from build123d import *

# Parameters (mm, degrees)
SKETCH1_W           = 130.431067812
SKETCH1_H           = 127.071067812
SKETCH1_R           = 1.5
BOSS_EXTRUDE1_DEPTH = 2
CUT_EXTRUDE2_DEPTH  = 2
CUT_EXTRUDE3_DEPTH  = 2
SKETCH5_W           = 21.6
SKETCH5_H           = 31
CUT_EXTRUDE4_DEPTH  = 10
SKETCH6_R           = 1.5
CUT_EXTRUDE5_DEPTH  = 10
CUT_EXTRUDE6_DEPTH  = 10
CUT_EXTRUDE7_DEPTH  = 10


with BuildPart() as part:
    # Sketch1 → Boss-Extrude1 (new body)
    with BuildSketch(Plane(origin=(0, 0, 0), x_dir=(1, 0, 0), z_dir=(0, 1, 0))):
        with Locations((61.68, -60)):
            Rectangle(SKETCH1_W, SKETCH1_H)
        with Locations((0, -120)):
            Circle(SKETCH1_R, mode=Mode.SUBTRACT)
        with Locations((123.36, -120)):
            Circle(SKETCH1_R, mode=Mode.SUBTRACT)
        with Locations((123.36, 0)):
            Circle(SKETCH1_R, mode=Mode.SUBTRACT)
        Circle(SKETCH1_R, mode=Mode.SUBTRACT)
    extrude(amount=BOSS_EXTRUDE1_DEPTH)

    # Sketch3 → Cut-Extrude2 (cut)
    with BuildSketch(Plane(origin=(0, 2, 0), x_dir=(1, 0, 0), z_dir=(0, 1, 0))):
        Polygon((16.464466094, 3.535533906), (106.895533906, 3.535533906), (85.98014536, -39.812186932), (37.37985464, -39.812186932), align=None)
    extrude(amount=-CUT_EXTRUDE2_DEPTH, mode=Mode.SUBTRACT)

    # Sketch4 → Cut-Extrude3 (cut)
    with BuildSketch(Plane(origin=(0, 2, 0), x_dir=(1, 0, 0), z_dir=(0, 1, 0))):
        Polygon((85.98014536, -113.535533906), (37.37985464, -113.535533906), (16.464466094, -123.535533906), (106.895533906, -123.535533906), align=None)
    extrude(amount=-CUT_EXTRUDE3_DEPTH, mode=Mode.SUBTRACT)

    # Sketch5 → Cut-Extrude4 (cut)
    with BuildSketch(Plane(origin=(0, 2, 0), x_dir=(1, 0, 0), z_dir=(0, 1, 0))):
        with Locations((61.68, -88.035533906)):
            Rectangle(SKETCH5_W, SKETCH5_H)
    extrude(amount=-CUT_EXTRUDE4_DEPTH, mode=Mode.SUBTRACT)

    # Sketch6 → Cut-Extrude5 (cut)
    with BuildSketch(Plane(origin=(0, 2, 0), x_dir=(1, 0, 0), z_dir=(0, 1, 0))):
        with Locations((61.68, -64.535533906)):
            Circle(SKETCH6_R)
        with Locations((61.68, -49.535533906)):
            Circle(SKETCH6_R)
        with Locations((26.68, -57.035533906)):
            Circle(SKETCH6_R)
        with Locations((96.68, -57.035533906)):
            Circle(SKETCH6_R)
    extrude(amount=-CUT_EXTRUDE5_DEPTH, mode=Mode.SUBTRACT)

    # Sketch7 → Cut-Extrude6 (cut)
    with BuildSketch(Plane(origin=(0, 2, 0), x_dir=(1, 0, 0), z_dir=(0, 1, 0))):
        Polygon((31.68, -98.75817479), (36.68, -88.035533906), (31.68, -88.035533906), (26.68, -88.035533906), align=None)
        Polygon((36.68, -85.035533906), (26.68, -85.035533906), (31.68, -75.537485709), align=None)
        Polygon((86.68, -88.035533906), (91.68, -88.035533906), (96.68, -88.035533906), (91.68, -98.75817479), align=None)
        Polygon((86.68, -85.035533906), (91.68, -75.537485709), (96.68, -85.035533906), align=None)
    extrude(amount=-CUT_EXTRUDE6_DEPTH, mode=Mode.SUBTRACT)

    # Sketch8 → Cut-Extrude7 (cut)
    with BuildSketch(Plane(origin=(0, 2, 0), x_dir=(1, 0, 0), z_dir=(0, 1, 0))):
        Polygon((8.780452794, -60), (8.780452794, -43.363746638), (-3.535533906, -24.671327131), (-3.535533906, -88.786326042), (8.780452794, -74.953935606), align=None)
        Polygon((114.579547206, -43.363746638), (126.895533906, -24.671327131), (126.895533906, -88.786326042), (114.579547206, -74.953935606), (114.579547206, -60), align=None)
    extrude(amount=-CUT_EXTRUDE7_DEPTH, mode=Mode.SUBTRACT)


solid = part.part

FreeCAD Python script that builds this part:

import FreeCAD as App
import Part
import Sketcher
from FreeCAD import Vector

doc = App.newDocument("Part")
params = doc.addObject("Spreadsheet::Sheet", "Params")
for row, (alias, value) in enumerate([
    ("sketch1_diameter", "3 mm"),
    ("pad1_length", "2 mm"),
    ("pocket1_length", "2 mm"),
    ("pocket2_length", "2 mm"),
    ("sketch4_height", "31 mm"),
    ("sketch4_width", "21.6 mm"),
    ("pocket3_length", "10 mm"),
    ("sketch5_diameter", "3 mm"),
    ("pocket4_length", "10 mm"),
    ("sketch6_width", "10 mm"),
    ("pocket5_length", "10 mm"),
    ("pocket6_length", "10 mm"),
], start=1):
    params.set(f"A{row}", alias)
    params.set(f"B{row}", "=" + value)
    params.setAlias(f"B{row}", alias)

body = doc.addObject("PartDesign::Body", "Body")

sketch1 = body.newObject("Sketcher::SketchObject", "Sketch")
sketch1.AttachmentSupport = (doc.getObject("XZ_Plane"), [""])
sketch1.MapMode = "FlatFace"
sketch1.addGeometry([
    Part.LineSegment(Vector(-3.5, -3.5, 0), Vector(-3.5, 123.5, 0)),
    Part.LineSegment(Vector(-3.5, 123.5, 0), Vector(126.9, 123.5, 0)),
    Part.LineSegment(Vector(126.9, 123.5, 0), Vector(126.9, -3.5, 0)),
    Part.LineSegment(Vector(126.9, -3.5, 0), Vector(-3.5, -3.5, 0)),
    Part.Circle(Vector(0, 120, 0), Vector(0, 0, 1), 1.5),
    Part.Circle(Vector(123.4, 120, 0), Vector(0, 0, 1), 1.5),
    Part.Circle(Vector(0, 0, 0), Vector(0, 0, 1), 1.5),
    Part.Circle(Vector(123.4, 0, 0), Vector(0, 0, 1), 1.5),
], False)
sketch1.addConstraint([
    Sketcher.Constraint("Coincident", 0, 2, 1, 1),
    Sketcher.Constraint("Coincident", 1, 2, 2, 1),
    Sketcher.Constraint("Coincident", 2, 2, 3, 1),
    Sketcher.Constraint("Coincident", 3, 2, 0, 1),
    Sketcher.Constraint("Vertical", 0),
    Sketcher.Constraint("Horizontal", 1),
    Sketcher.Constraint("Vertical", 2),
    Sketcher.Constraint("Horizontal", 3),
    Sketcher.Constraint("Coincident", 6, 3, -1, 1),
    Sketcher.Constraint("Equal", 4, 5),
    Sketcher.Constraint("Equal", 5, 6),
    Sketcher.Constraint("Equal", 6, 7),
    Sketcher.Constraint("PointOnObject", 4, 3, -2),
    Sketcher.Constraint("PointOnObject", 7, 3, -1),
    Sketcher.Constraint("Horizontal", 4, 3, 5, 3),
    Sketcher.Constraint("Vertical", 5, 3, 7, 3),
    Sketcher.Constraint("Diameter", 4, 3.0),
    Sketcher.Constraint("DistanceY", -1, 1, 4, 3, 120.0),
    Sketcher.Constraint("DistanceX", -1, 1, 5, 3, 123.36),
    Sketcher.Constraint("DistanceX", 1, 1, 1, 2, 130.431068),
    Sketcher.Constraint("DistanceY", 0, 1, 0, 2, 127.071068),
    Sketcher.Constraint("DistanceX", 0, 2, -1, 1, 3.535534),
    Sketcher.Constraint("DistanceY", -1, 1, 0, 2, 123.535534),
])
sketch1.setExpression("Constraints[16]", "Params.sketch1_diameter")
pad1 = body.newObject("PartDesign::Pad", "Pad")
pad1.Profile = sketch1
pad1.setExpression("Length", "Params.pad1_length")
pad1.Reversed = True

sketch2 = body.newObject("Sketcher::SketchObject", "Sketch001")
sketch2.AttachmentSupport = (doc.getObject("XZ_Plane"), [""])
sketch2.MapMode = "FlatFace"
sketch2.AttachmentOffset = App.Placement(Vector(0, 0, -2), App.Rotation())
sketch2.addGeometry([
    Part.LineSegment(Vector(107, -4, 0), Vector(16, -4, 0)),
    Part.LineSegment(Vector(16, -4, 0), Vector(37, 40, 0)),
    Part.LineSegment(Vector(37, 40, 0), Vector(86, 40, 0)),
    Part.LineSegment(Vector(86, 40, 0), Vector(107, -4, 0)),
], False)
sketch2.addConstraint([
    Sketcher.Constraint("Coincident", 0, 2, 1, 1),
    Sketcher.Constraint("Coincident", 1, 2, 2, 1),
    Sketcher.Constraint("Coincident", 2, 2, 3, 1),
    Sketcher.Constraint("Coincident", 3, 2, 0, 1),
    Sketcher.Constraint("Horizontal", 0),
    Sketcher.Constraint("Horizontal", 2),
    Sketcher.Constraint("Equal", 1, 3),
    Sketcher.Constraint("DistanceX", 2, 1, 2, 2, 48.600291),
    Sketcher.Constraint("DistanceX", 0, 2, 0, 1, 90.431068),
    Sketcher.Constraint("DistanceY", 0, 2, 1, 2, 43.347721),
    Sketcher.Constraint("DistanceX", -1, 1, 0, 2, 16.464466),
    Sketcher.Constraint("DistanceY", 0, 2, -1, 1, 3.535534),
])
pocket1 = body.newObject("PartDesign::Pocket", "Pocket")
pocket1.Profile = sketch2
pocket1.setExpression("Length", "Params.pocket1_length")
pocket1.Reversed = True

sketch3 = body.newObject("Sketcher::SketchObject", "Sketch002")
sketch3.AttachmentSupport = (doc.getObject("XZ_Plane"), [""])
sketch3.MapMode = "FlatFace"
sketch3.AttachmentOffset = App.Placement(Vector(0, 0, -2), App.Rotation())
sketch3.addGeometry([
    Part.LineSegment(Vector(86, 114, 0), Vector(37, 114, 0)),
    Part.LineSegment(Vector(37, 114, 0), Vector(16, 124, 0)),
    Part.LineSegment(Vector(16, 124, 0), Vector(107, 124, 0)),
    Part.LineSegment(Vector(107, 124, 0), Vector(86, 114, 0)),
], False)
sketch3.addConstraint([
    Sketcher.Constraint("Coincident", 0, 2, 1, 1),
    Sketcher.Constraint("Coincident", 1, 2, 2, 1),
    Sketcher.Constraint("Coincident", 2, 2, 3, 1),
    Sketcher.Constraint("Coincident", 3, 2, 0, 1),
    Sketcher.Constraint("Horizontal", 0),
    Sketcher.Constraint("Horizontal", 2),
    Sketcher.Constraint("Equal", 1, 3),
    Sketcher.Constraint("DistanceY", 0, 2, 1, 2, 10.0),
    Sketcher.Constraint("DistanceX", 0, 2, 0, 1, 48.600291),
    Sketcher.Constraint("DistanceX", 2, 1, 2, 2, 90.431068),
    Sketcher.Constraint("DistanceX", -1, 1, 0, 2, 37.379855),
    Sketcher.Constraint("DistanceY", -1, 1, 0, 2, 113.535534),
])
pocket2 = body.newObject("PartDesign::Pocket", "Pocket001")
pocket2.Profile = sketch3
pocket2.setExpression("Length", "Params.pocket2_length")
pocket2.Reversed = True

sketch4 = body.newObject("Sketcher::SketchObject", "Sketch003")
sketch4.AttachmentSupport = (doc.getObject("XZ_Plane"), [""])
sketch4.MapMode = "FlatFace"
sketch4.AttachmentOffset = App.Placement(Vector(0, 0, -2), App.Rotation())
sketch4.addGeometry([
    Part.LineSegment(Vector(51, 73, 0), Vector(51, 104, 0)),
    Part.LineSegment(Vector(51, 104, 0), Vector(72, 104, 0)),
    Part.LineSegment(Vector(72, 104, 0), Vector(72, 73, 0)),
    Part.LineSegment(Vector(72, 73, 0), Vector(51, 73, 0)),
], False)
sketch4.addConstraint([
    Sketcher.Constraint("Coincident", 0, 2, 1, 1),
    Sketcher.Constraint("Coincident", 1, 2, 2, 1),
    Sketcher.Constraint("Coincident", 2, 2, 3, 1),
    Sketcher.Constraint("Coincident", 3, 2, 0, 1),
    Sketcher.Constraint("Vertical", 0),
    Sketcher.Constraint("Horizontal", 1),
    Sketcher.Constraint("Vertical", 2),
    Sketcher.Constraint("Horizontal", 3),
    Sketcher.Constraint("DistanceY", 0, 1, 0, 2, 31.0),
    Sketcher.Constraint("DistanceX", 1, 1, 1, 2, 21.6),
    Sketcher.Constraint("DistanceX", -1, 1, 0, 2, 50.88),
    Sketcher.Constraint("DistanceY", -1, 1, 0, 2, 103.535534),
])
sketch4.setExpression("Constraints[8]", "Params.sketch4_height")
sketch4.setExpression("Constraints[9]", "Params.sketch4_width")
pocket3 = body.newObject("PartDesign::Pocket", "Pocket002")
pocket3.Profile = sketch4
pocket3.setExpression("Length", "Params.pocket3_length")
pocket3.Reversed = True

sketch5 = body.newObject("Sketcher::SketchObject", "Sketch004")
sketch5.AttachmentSupport = (doc.getObject("XZ_Plane"), [""])
sketch5.MapMode = "FlatFace"
sketch5.AttachmentOffset = App.Placement(Vector(0, 0, -2), App.Rotation())
sketch5.addGeometry([
    Part.Circle(Vector(61.7, 64.5, 0), Vector(0, 0, 1), 1.5),
    Part.Circle(Vector(61.7, 49.5, 0), Vector(0, 0, 1), 1.5),
    Part.Circle(Vector(26.7, 57, 0), Vector(0, 0, 1), 1.5),
    Part.Circle(Vector(96.7, 57, 0), Vector(0, 0, 1), 1.5),
], False)
sketch5.addConstraint([
    Sketcher.Constraint("Equal", 0, 1),
    Sketcher.Constraint("Equal", 1, 2),
    Sketcher.Constraint("Equal", 2, 3),
    Sketcher.Constraint("Horizontal", 2, 3, 3, 3),
    Sketcher.Constraint("Vertical", 0, 3, 1, 3),
    Sketcher.Constraint("Diameter", 0, 3.0),
    Sketcher.Constraint("DistanceY", 1, 3, 0, 3, 15.0),
    Sketcher.Constraint("DistanceX", 2, 3, 0, 3, 35.0),
    Sketcher.Constraint("DistanceX", 0, 3, 3, 3, 35.0),
    Sketcher.Constraint("DistanceY", 2, 3, 0, 3, 7.5),
    Sketcher.Constraint("DistanceX", -1, 1, 0, 3, 61.68),
    Sketcher.Constraint("DistanceY", -1, 1, 0, 3, 64.535534),
])
sketch5.setExpression("Constraints[5]", "Params.sketch5_diameter")
pocket4 = body.newObject("PartDesign::Pocket", "Pocket003")
pocket4.Profile = sketch5
pocket4.setExpression("Length", "Params.pocket4_length")
pocket4.Reversed = True

sketch6 = body.newObject("Sketcher::SketchObject", "Sketch005")
sketch6.AttachmentSupport = (doc.getObject("XZ_Plane"), [""])
sketch6.MapMode = "FlatFace"
sketch6.AttachmentOffset = App.Placement(Vector(0, 0, -2), App.Rotation())
sketch6.addGeometry([
    Part.LineSegment(Vector(32, 99, 0), Vector(37, 88, 0)),
    Part.LineSegment(Vector(37, 88, 0), Vector(27, 88, 0)),
    Part.LineSegment(Vector(27, 88, 0), Vector(32, 99, 0)),
    Part.LineSegment(Vector(27, 85, 0), Vector(37, 85, 0)),
    Part.LineSegment(Vector(37, 85, 0), Vector(32, 76, 0)),
    Part.LineSegment(Vector(32, 76, 0), Vector(27, 85, 0)),
    Part.LineSegment(Vector(97, 88, 0), Vector(87, 88, 0)),
    Part.LineSegment(Vector(87, 88, 0), Vector(92, 99, 0)),
    Part.LineSegment(Vector(92, 99, 0), Vector(97, 88, 0)),
    Part.LineSegment(Vector(92, 76, 0), Vector(87, 85, 0)),
    Part.LineSegment(Vector(87, 85, 0), Vector(97, 85, 0)),
    Part.LineSegment(Vector(97, 85, 0), Vector(92, 76, 0)),
], False)
sketch6.addConstraint([
    Sketcher.Constraint("Coincident", 0, 2, 1, 1),
    Sketcher.Constraint("Coincident", 1, 2, 2, 1),
    Sketcher.Constraint("Coincident", 2, 2, 0, 1),
    Sketcher.Constraint("Coincident", 3, 2, 4, 1),
    Sketcher.Constraint("Coincident", 4, 2, 5, 1),
    Sketcher.Constraint("Coincident", 5, 2, 3, 1),
    Sketcher.Constraint("Coincident", 6, 2, 7, 1),
    Sketcher.Constraint("Coincident", 7, 2, 8, 1),
    Sketcher.Constraint("Coincident", 8, 2, 6, 1),
    Sketcher.Constraint("Coincident", 9, 2, 10, 1),
    Sketcher.Constraint("Coincident", 10, 2, 11, 1),
    Sketcher.Constraint("Coincident", 11, 2, 9, 1),
    Sketcher.Constraint("Horizontal", 1),
    Sketcher.Constraint("Horizontal", 3),
    Sketcher.Constraint("Horizontal", 6),
    Sketcher.Constraint("Horizontal", 10),
    Sketcher.Constraint("Parallel", 2, 7),
    Sketcher.Constraint("Parallel", 0, 8),
    Sketcher.Constraint("Parallel", 5, 9),
    Sketcher.Constraint("Parallel", 4, 11),
    Sketcher.Constraint("Horizontal", 1, 2, 6, 2),
    Sketcher.Constraint("Horizontal", 2, 2, 7, 2),
    Sketcher.Constraint("Horizontal", 5, 2, 9, 2),
    Sketcher.Constraint("Horizontal", 4, 2, 11, 2),
    Sketcher.Constraint("Vertical", 0, 2, 3, 2),
    Sketcher.Constraint("Vertical", 2, 2, 4, 2),
    Sketcher.Constraint("Vertical", 1, 2, 5, 2),
    Sketcher.Constraint("Vertical", 6, 2, 9, 2),
    Sketcher.Constraint("Equal", 0, 2),
    Sketcher.Constraint("DistanceX", 1, 2, 1, 1, 10.0),
    Sketcher.Constraint("DistanceY", 3, 2, 0, 2, 3.0),
    Sketcher.Constraint("DistanceX", 0, 2, 6, 2, 50.0),
    Sketcher.Constraint("DistanceX", -1, 1, 0, 2, 36.68),
    Sketcher.Constraint("Distance", 4, 10.733728),
    Sketcher.Constraint("DistanceY", 0, 2, 2, 2, 10.722641),
    Sketcher.Constraint("DistanceY", -1, 1, 0, 2, 88.035534),
])
sketch6.setExpression("Constraints[29]", "Params.sketch6_width")
pocket5 = body.newObject("PartDesign::Pocket", "Pocket004")
pocket5.Profile = sketch6
pocket5.setExpression("Length", "Params.pocket5_length")
pocket5.Reversed = True

sketch7 = body.newObject("Sketcher::SketchObject", "Sketch006")
sketch7.AttachmentSupport = (doc.getObject("XZ_Plane"), [""])
sketch7.MapMode = "FlatFace"
sketch7.AttachmentOffset = App.Placement(Vector(0, 0, -2), App.Rotation())
sketch7.addGeometry([
    Part.LineSegment(Vector(9, 43, 0), Vector(-4, 25, 0)),
    Part.LineSegment(Vector(-4, 25, 0), Vector(-4, 89, 0)),
    Part.LineSegment(Vector(-4, 89, 0), Vector(9, 75, 0)),
    Part.LineSegment(Vector(9, 75, 0), Vector(9, 43, 0)),
    Part.LineSegment(Vector(127, 25, 0), Vector(115, 43, 0)),
    Part.LineSegment(Vector(115, 43, 0), Vector(115, 75, 0)),
    Part.LineSegment(Vector(115, 75, 0), Vector(127, 89, 0)),
    Part.LineSegment(Vector(127, 89, 0), Vector(127, 25, 0)),
], False)
sketch7.addConstraint([
    Sketcher.Constraint("Coincident", 0, 2, 1, 1),
    Sketcher.Constraint("Coincident", 1, 2, 2, 1),
    Sketcher.Constraint("Coincident", 2, 2, 3, 1),
    Sketcher.Constraint("Coincident", 3, 2, 0, 1),
    Sketcher.Constraint("Coincident", 4, 2, 5, 1),
    Sketcher.Constraint("Coincident", 5, 2, 6, 1),
    Sketcher.Constraint("Coincident", 6, 2, 7, 1),
    Sketcher.Constraint("Coincident", 7, 2, 4, 1),
    Sketcher.Constraint("Vertical", 1),
    Sketcher.Constraint("Vertical", 3),
    Sketcher.Constraint("Vertical", 5),
    Sketcher.Constraint("Vertical", 7),
    Sketcher.Constraint("Horizontal", 3, 2, 4, 2),
    Sketcher.Constraint("Horizontal", 2, 2, 5, 2),
    Sketcher.Constraint("Horizontal", 1, 2, 6, 2),
    Sketcher.Constraint("Horizontal", 0, 2, 7, 2),
    Sketcher.Constraint("Equal", 0, 4),
    Sketcher.Constraint("DistanceY", 1, 1, 1, 2, 64.114999),
    Sketcher.Constraint("DistanceY", 3, 2, 3, 1, 31.590189),
    Sketcher.Constraint("Distance", 0, 22.385041),
    Sketcher.Constraint("Distance", 2, 18.52076),
    Sketcher.Constraint("DistanceX", 0, 2, 4, 2, 118.115081),
    Sketcher.Constraint("DistanceX", 0, 2, -1, 1, 3.535534),
    Sketcher.Constraint("DistanceY", -1, 1, 0, 2, 24.671327),
])
pocket6 = body.newObject("PartDesign::Pocket", "Pocket005")
pocket6.Profile = sketch7
pocket6.setExpression("Length", "Params.pocket6_length")
pocket6.Reversed = True

doc.recompute()
